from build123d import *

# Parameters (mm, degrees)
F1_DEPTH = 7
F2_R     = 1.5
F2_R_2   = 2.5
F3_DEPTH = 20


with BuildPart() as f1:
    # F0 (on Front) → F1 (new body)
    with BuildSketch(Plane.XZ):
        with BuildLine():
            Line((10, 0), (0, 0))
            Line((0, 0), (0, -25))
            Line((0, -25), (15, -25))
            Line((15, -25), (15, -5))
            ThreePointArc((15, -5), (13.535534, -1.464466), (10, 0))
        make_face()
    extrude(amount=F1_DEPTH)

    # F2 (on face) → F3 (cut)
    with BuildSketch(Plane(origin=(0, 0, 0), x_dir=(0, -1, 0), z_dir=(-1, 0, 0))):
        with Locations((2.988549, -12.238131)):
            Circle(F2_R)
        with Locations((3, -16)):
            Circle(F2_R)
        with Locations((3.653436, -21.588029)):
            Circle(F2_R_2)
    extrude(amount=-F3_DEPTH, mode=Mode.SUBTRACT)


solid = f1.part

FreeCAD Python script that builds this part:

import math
import FreeCAD as App
import Part
import Sketcher
from FreeCAD import Vector

doc = App.newDocument("Part")
body = doc.addObject("PartDesign::Body", "Body")

# Sketch on XZ plane
sketch1 = body.newObject("Sketcher::SketchObject", "Sketch")
sketch1.AttachmentSupport = (doc.getObject("XZ_Plane"), [""])
sketch1.MapMode = "FlatFace"
sketch1.addGeometry(Part.LineSegment(Vector(10, 0, 0), Vector(0, 0, 0)), False)
sketch1.addGeometry(Part.LineSegment(Vector(0, 0, 0), Vector(0, -25, 0)), False)
sketch1.addGeometry(Part.LineSegment(Vector(0, -25, 0), Vector(15, -25, 0)), False)
sketch1.addGeometry(Part.LineSegment(Vector(15, -25, 0), Vector(15, -5, 0)), False)
sketch1.addGeometry(Part.ArcOfCircle(Part.Circle(Vector(10, -5, 0), Vector(0, 0, 1), 5), math.radians(-0.000004), math.radians(90.000004)), False)
sketch1.addConstraint(Sketcher.Constraint("Coincident", 0, 2, 1, 1))
sketch1.addConstraint(Sketcher.Constraint("Coincident", 1, 2, 2, 1))
sketch1.addConstraint(Sketcher.Constraint("Coincident", 2, 2, 3, 1))
sketch1.addConstraint(Sketcher.Constraint("Tangent", 3, 2, 4, 1))
sketch1.addConstraint(Sketcher.Constraint("Tangent", 4, 2, 0, 1))
sketch1.addConstraint(Sketcher.Constraint("Horizontal", 0))
sketch1.addConstraint(Sketcher.Constraint("Vertical", 1))
sketch1.addConstraint(Sketcher.Constraint("Horizontal", 2))
sketch1.addConstraint(Sketcher.Constraint("Vertical", 3))
sketch1.addConstraint(Sketcher.Constraint("Coincident", 0, 2, -1, 1))
sketch1.addConstraint(Sketcher.Constraint("Radius", 4, 5.0))
sketch1.addConstraint(Sketcher.Constraint("DistanceX", 0, 2, 0, 1, 10.0))
sketch1.addConstraint(Sketcher.Constraint("DistanceY", 1, 2, 1, 1, 25.0))
pad1 = body.newObject("PartDesign::Pad", "Pad")
pad1.Profile = sketch1
pad1.Length = 7

# Sketch on YZ plane
sketch2 = body.newObject("Sketcher::SketchObject", "Sketch001")
sketch2.AttachmentSupport = (doc.getObject("YZ_Plane"), [""])
sketch2.MapMode = "FlatFace"
sketch2.addGeometry(Part.Circle(Vector(-2.988549, -12.238131, 0), Vector(0, 0, 1), 1.5), False)
sketch2.addGeometry(Part.Circle(Vector(-3, -16, 0), Vector(0, 0, 1), 1.5), False)
sketch2.addGeometry(Part.Circle(Vector(-3.653436, -21.588029, 0), Vector(0, 0, 1), 2.5), False)
sketch2.addConstraint(Sketcher.Constraint("Equal", 0, 1))
sketch2.addConstraint(Sketcher.Constraint("Diameter", 0, 3.0))
sketch2.addConstraint(Sketcher.Constraint("Diameter", 2, 5.0))
sketch2.addConstraint(Sketcher.Constraint("DistanceX", 1, 3, -1, 1, 3.0))
sketch2.addConstraint(Sketcher.Constraint("DistanceY", 1, 3, -1, 1, 16.0))
sketch2.addConstraint(Sketcher.Constraint("DistanceX", 0, 3, -1, 1, 2.988549))
sketch2.addConstraint(Sketcher.Constraint("DistanceY", 0, 3, -1, 1, 12.238131))
sketch2.addConstraint(Sketcher.Constraint("DistanceY", 2, 3, -1, 1, 21.588029))
sketch2.addConstraint(Sketcher.Constraint("DistanceX", 2, 3, -1, 1, 3.653436))
pocket1 = body.newObject("PartDesign::Pocket", "Pocket")
pocket1.Profile = sketch2
pocket1.Length = 20
pocket1.Reversed = True

doc.recompute()
